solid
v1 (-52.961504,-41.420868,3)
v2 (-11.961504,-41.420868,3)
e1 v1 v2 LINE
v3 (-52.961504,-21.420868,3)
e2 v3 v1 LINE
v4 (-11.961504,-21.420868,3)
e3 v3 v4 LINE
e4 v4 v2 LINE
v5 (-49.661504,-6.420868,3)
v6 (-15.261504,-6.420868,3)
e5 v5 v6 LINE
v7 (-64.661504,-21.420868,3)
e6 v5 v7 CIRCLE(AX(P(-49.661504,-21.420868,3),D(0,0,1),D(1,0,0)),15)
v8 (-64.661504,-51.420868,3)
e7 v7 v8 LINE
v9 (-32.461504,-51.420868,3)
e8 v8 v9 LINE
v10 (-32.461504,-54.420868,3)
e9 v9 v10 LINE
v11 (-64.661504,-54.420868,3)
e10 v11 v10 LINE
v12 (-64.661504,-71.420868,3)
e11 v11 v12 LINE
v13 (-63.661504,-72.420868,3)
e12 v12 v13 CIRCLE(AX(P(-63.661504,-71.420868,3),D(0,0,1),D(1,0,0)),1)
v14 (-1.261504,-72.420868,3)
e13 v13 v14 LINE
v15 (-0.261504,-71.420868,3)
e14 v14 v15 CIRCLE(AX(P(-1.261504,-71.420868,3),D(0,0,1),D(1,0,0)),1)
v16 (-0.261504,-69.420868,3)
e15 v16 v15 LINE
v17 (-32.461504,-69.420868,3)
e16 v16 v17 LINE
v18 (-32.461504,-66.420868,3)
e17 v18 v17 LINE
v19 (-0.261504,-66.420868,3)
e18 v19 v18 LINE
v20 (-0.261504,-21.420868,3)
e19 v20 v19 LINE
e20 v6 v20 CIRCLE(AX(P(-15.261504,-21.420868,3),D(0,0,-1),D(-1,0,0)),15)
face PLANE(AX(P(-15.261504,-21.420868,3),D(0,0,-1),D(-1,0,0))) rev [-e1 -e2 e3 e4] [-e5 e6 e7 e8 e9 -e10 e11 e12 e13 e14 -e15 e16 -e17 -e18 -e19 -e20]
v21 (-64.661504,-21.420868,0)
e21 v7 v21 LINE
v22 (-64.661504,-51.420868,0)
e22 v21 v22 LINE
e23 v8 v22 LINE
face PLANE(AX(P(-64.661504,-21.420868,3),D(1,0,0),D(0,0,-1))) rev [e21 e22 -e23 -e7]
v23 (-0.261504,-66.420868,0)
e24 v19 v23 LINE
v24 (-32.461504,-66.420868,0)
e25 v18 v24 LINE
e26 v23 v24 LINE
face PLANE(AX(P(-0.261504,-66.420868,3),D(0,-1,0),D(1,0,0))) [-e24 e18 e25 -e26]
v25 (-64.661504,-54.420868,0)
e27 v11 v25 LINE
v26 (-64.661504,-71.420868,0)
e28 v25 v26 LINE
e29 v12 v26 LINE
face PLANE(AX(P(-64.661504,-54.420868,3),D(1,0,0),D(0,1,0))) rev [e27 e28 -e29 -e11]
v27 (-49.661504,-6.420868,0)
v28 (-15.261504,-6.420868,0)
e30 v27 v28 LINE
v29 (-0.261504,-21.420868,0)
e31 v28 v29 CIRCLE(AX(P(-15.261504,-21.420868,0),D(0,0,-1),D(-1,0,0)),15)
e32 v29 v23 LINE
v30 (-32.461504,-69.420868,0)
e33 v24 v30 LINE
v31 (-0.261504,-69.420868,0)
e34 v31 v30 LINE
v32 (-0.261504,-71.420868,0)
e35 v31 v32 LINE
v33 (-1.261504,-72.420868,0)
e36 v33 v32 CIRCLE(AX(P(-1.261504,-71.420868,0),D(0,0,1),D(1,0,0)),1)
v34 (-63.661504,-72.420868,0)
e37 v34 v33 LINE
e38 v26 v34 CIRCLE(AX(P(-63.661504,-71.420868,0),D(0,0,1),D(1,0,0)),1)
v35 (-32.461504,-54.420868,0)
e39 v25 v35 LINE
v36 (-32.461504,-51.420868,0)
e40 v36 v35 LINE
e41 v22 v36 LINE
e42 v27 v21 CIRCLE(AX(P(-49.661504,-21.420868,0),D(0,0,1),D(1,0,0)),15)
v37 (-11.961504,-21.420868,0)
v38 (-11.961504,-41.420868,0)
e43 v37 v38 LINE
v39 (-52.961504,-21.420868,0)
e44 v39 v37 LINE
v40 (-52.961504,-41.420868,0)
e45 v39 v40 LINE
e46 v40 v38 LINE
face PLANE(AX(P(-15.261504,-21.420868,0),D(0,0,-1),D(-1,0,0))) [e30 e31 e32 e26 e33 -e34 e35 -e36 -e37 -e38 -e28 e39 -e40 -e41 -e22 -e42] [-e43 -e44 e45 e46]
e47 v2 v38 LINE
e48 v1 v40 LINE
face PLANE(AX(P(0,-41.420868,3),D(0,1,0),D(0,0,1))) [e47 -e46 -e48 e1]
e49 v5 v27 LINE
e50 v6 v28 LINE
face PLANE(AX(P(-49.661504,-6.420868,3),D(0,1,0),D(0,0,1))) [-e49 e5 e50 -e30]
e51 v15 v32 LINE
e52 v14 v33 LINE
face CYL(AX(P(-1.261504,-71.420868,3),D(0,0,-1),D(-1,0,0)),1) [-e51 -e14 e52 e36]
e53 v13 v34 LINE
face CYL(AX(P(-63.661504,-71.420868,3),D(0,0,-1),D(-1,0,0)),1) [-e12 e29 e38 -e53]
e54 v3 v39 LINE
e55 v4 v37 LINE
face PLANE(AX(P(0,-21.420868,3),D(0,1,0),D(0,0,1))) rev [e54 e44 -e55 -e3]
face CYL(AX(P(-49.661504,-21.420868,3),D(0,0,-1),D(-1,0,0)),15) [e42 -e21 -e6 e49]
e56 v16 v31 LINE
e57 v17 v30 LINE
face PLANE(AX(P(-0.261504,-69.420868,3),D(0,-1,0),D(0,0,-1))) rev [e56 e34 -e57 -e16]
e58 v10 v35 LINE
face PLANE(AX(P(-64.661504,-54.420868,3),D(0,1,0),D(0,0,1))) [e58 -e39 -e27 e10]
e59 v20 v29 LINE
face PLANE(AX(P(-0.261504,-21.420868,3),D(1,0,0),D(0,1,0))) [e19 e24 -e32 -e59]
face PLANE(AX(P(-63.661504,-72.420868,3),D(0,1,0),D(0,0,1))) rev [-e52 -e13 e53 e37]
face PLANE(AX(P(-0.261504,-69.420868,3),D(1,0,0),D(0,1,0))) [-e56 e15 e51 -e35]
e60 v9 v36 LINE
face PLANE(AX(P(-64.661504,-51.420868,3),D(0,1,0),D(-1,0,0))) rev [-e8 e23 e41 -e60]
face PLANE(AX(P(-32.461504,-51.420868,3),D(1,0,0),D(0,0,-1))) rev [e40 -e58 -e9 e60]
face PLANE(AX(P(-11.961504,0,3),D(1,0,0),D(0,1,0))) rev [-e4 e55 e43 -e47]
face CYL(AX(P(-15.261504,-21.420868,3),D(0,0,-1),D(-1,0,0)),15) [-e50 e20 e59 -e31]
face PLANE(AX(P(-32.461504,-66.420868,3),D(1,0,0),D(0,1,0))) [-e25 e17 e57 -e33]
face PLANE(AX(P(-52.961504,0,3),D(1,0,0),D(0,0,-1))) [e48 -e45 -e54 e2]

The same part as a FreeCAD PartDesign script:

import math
import FreeCAD as App
import Part
import Sketcher
from FreeCAD import Vector
Q = App.Units.Quantity


def add_polygon(sketch, points):
    """Adds a closed chain of lines whose ends are joined by coincident constraints."""
    first, n = sketch.GeometryCount, len(points)
    for a, b in zip(points, points[1:] + points[:1]):
        sketch.addGeometry(Part.LineSegment(App.Vector(*a, 0), App.Vector(*b, 0)), False)
    for i in range(n):
        sketch.addConstraint(Sketcher.Constraint("Coincident", first + i, 2, first + (i + 1) % n, 1))

doc = App.newDocument("Part")
body = doc.addObject("PartDesign::Body", "Body")

sketch1 = body.newObject("Sketcher::SketchObject", "Sketch")
sketch1.AttachmentSupport = (doc.getObject("XY_Plane"), [""])
sketch1.MapMode = "FlatFace"
sketch1.addGeometry(Part.LineSegment(Vector(-15.3, -6.4, 0), Vector(-49.7, -6.4, 0)), False)
sketch1.addGeometry(Part.ArcOfCircle(Part.Circle(Vector(-49.7, -21.4, 0), Vector(0, 0, 1), 15), math.radians(90), math.radians(180)), False)
sketch1.addGeometry(Part.LineSegment(Vector(-64.7, -21.4, 0), Vector(-64.7, -51.4, 0)), False)
sketch1.addGeometry(Part.LineSegment(Vector(-64.7, -51.4, 0), Vector(-32.5, -51.4, 0)), False)
sketch1.addGeometry(Part.LineSegment(Vector(-32.5, -51.4, 0), Vector(-32.5, -54.4, 0)), False)
sketch1.addGeometry(Part.LineSegment(Vector(-32.5, -54.4, 0), Vector(-64.7, -54.4, 0)), False)
sketch1.addGeometry(Part.LineSegment(Vector(-64.7, -54.4, 0), Vector(-64.7, -71.4, 0)), False)
sketch1.addGeometry(Part.ArcOfCircle(Part.Circle(Vector(-63.7, -71.4, 0), Vector(0, 0, 1), 1), math.radians(-180), math.radians(-90)), False)
sketch1.addGeometry(Part.LineSegment(Vector(-63.7, -72.4, 0), Vector(-1.3, -72.4, 0)), False)
sketch1.addGeometry(Part.ArcOfCircle(Part.Circle(Vector(-1.3, -71.4, 0), Vector(0, 0, 1), 1), math.radians(-90), math.radians(0)), False)
sketch1.addGeometry(Part.LineSegment(Vector(-0.3, -71.4, 0), Vector(-0.3, -69.4, 0)), False)
sketch1.addGeometry(Part.LineSegment(Vector(-0.3, -69.4, 0), Vector(-32.5, -69.4, 0)), False)
sketch1.addGeometry(Part.LineSegment(Vector(-32.5, -69.4, 0), Vector(-32.5, -66.4, 0)), False)
sketch1.addGeometry(Part.LineSegment(Vector(-32.5, -66.4, 0), Vector(-0.3, -66.4, 0)), False)
sketch1.addGeometry(Part.LineSegment(Vector(-0.3, -66.4, 0), Vector(-0.3, -21.4, 0)), False)
sketch1.addGeometry(Part.ArcOfCircle(Part.Circle(Vector(-15.3, -21.4, 0), Vector(0, 0, 1), 15), math.radians(0), math.radians(90)), False)
add_polygon(sketch1, [(-53, -41.4), (-53, -21.4), (-12, -21.4), (-12, -41.4)])
sketch1.addConstraint(Sketcher.Constraint("Tangent", 0, 2, 1, 1))
sketch1.addConstraint(Sketcher.Constraint("Tangent", 1, 2, 2, 1))
sketch1.addConstraint(Sketcher.Constraint("Coincident", 2, 2, 3, 1))
sketch1.addConstraint(Sketcher.Constraint("Coincident", 3, 2, 4, 1))
sketch1.addConstraint(Sketcher.Constraint("Coincident", 4, 2, 5, 1))
sketch1.addConstraint(Sketcher.Constraint("Coincident", 5, 2, 6, 1))
sketch1.addConstraint(Sketcher.Constraint("Tangent", 6, 2, 7, 1))
sketch1.addConstraint(Sketcher.Constraint("Tangent", 7, 2, 8, 1))
sketch1.addConstraint(Sketcher.Constraint("Tangent", 8, 2, 9, 1))
sketch1.addConstraint(Sketcher.Constraint("Tangent", 9, 2, 10, 1))
sketch1.addConstraint(Sketcher.Constraint("Coincident", 10, 2, 11, 1))
sketch1.addConstraint(Sketcher.Constraint("Coincident", 11, 2, 12, 1))
sketch1.addConstraint(Sketcher.Constraint("Coincident", 12, 2, 13, 1))
sketch1.addConstraint(Sketcher.Constraint("Coincident", 13, 2, 14, 1))
sketch1.addConstraint(Sketcher.Constraint("Tangent", 14, 2, 15, 1))
sketch1.addConstraint(Sketcher.Constraint("Tangent", 15, 2, 0, 1))
sketch1.addConstraint(Sketcher.Constraint("Horizontal", 0))
sketch1.addConstraint(Sketcher.Constraint("Vertical", 2))
sketch1.addConstraint(Sketcher.Constraint("Horizontal", 3))
sketch1.addConstraint(Sketcher.Constraint("Vertical", 4))
sketch1.addConstraint(Sketcher.Constraint("Horizontal", 5))
sketch1.addConstraint(Sketcher.Constraint("Vertical", 6))
sketch1.addConstraint(Sketcher.Constraint("Horizontal", 8))
sketch1.addConstraint(Sketcher.Constraint("Vertical", 10))
sketch1.addConstraint(Sketcher.Constraint("Horizontal", 11))
sketch1.addConstraint(Sketcher.Constraint("Vertical", 12))
sketch1.addConstraint(Sketcher.Constraint("Horizontal", 13))
sketch1.addConstraint(Sketcher.Constraint("Vertical", 14))
sketch1.addConstraint(Sketcher.Constraint("Vertical", 16))
sketch1.addConstraint(Sketcher.Constraint("Horizontal", 17))
sketch1.addConstraint(Sketcher.Constraint("Vertical", 18))
sketch1.addConstraint(Sketcher.Constraint("Horizontal", 19))
sketch1.addConstraint(Sketcher.Constraint("Equal", 7, 9))
sketch1.addConstraint(Sketcher.Constraint("Equal", 1, 15))
sketch1.addConstraint(Sketcher.Constraint("Horizontal", 14, 2, 16, 2))
sketch1.addConstraint(Sketcher.Constraint("Vertical", 2, 2, 5, 2))
sketch1.addConstraint(Sketcher.Constraint("Vertical", 4, 2, 11, 2))
sketch1.addConstraint(Sketcher.Constraint("Vertical", 10, 2, 13, 2))
sketch1.addConstraint(Sketcher.Constraint("Equal", 5, 11))
sketch1.addConstraint(Sketcher.Constraint("Equal", 4, 12))
sketch1.addConstraint(Sketcher.Constraint("Radius", 1, Q("15 mm")))
sketch1.addConstraint(Sketcher.Constraint("Radius", 7, Q("1 mm")))
sketch1.addConstraint(Sketcher.Constraint("DistanceX", 17, 1, 17, 2, Q("41 mm")))
sketch1.addConstraint(Sketcher.Constraint("DistanceY", 2, 2, 2, 1, Q("30 mm")))
sketch1.addConstraint(Sketcher.Constraint("DistanceY", 4, 2, 4, 1, Q("3 mm")))
sketch1.addConstraint(Sketcher.Constraint("DistanceY", 6, 2, 6, 1, Q("17 mm")))
sketch1.addConstraint(Sketcher.Constraint("DistanceY", 10, 1, 10, 2, Q("2 mm")))
sketch1.addConstraint(Sketcher.Constraint("DistanceY", 16, 1, 16, 2, Q("20 mm")))
sketch1.addConstraint(Sketcher.Constraint("DistanceX", 0, 2, 0, 1, Q("34.4 mm")))
sketch1.addConstraint(Sketcher.Constraint("DistanceX", 16, 2, 1, 3, Q("3.3 mm")))
sketch1.addConstraint(Sketcher.Constraint("DistanceX", 1, 3, -1, 1, Q("49.661504 mm")))
sketch1.addConstraint(Sketcher.Constraint("DistanceY", 1, 3, -1, 1, Q("21.420868 mm")))
pad1 = body.newObject("PartDesign::Pad", "Pad")
pad1.Profile = sketch1
pad1.Length = 3

doc.recompute()
